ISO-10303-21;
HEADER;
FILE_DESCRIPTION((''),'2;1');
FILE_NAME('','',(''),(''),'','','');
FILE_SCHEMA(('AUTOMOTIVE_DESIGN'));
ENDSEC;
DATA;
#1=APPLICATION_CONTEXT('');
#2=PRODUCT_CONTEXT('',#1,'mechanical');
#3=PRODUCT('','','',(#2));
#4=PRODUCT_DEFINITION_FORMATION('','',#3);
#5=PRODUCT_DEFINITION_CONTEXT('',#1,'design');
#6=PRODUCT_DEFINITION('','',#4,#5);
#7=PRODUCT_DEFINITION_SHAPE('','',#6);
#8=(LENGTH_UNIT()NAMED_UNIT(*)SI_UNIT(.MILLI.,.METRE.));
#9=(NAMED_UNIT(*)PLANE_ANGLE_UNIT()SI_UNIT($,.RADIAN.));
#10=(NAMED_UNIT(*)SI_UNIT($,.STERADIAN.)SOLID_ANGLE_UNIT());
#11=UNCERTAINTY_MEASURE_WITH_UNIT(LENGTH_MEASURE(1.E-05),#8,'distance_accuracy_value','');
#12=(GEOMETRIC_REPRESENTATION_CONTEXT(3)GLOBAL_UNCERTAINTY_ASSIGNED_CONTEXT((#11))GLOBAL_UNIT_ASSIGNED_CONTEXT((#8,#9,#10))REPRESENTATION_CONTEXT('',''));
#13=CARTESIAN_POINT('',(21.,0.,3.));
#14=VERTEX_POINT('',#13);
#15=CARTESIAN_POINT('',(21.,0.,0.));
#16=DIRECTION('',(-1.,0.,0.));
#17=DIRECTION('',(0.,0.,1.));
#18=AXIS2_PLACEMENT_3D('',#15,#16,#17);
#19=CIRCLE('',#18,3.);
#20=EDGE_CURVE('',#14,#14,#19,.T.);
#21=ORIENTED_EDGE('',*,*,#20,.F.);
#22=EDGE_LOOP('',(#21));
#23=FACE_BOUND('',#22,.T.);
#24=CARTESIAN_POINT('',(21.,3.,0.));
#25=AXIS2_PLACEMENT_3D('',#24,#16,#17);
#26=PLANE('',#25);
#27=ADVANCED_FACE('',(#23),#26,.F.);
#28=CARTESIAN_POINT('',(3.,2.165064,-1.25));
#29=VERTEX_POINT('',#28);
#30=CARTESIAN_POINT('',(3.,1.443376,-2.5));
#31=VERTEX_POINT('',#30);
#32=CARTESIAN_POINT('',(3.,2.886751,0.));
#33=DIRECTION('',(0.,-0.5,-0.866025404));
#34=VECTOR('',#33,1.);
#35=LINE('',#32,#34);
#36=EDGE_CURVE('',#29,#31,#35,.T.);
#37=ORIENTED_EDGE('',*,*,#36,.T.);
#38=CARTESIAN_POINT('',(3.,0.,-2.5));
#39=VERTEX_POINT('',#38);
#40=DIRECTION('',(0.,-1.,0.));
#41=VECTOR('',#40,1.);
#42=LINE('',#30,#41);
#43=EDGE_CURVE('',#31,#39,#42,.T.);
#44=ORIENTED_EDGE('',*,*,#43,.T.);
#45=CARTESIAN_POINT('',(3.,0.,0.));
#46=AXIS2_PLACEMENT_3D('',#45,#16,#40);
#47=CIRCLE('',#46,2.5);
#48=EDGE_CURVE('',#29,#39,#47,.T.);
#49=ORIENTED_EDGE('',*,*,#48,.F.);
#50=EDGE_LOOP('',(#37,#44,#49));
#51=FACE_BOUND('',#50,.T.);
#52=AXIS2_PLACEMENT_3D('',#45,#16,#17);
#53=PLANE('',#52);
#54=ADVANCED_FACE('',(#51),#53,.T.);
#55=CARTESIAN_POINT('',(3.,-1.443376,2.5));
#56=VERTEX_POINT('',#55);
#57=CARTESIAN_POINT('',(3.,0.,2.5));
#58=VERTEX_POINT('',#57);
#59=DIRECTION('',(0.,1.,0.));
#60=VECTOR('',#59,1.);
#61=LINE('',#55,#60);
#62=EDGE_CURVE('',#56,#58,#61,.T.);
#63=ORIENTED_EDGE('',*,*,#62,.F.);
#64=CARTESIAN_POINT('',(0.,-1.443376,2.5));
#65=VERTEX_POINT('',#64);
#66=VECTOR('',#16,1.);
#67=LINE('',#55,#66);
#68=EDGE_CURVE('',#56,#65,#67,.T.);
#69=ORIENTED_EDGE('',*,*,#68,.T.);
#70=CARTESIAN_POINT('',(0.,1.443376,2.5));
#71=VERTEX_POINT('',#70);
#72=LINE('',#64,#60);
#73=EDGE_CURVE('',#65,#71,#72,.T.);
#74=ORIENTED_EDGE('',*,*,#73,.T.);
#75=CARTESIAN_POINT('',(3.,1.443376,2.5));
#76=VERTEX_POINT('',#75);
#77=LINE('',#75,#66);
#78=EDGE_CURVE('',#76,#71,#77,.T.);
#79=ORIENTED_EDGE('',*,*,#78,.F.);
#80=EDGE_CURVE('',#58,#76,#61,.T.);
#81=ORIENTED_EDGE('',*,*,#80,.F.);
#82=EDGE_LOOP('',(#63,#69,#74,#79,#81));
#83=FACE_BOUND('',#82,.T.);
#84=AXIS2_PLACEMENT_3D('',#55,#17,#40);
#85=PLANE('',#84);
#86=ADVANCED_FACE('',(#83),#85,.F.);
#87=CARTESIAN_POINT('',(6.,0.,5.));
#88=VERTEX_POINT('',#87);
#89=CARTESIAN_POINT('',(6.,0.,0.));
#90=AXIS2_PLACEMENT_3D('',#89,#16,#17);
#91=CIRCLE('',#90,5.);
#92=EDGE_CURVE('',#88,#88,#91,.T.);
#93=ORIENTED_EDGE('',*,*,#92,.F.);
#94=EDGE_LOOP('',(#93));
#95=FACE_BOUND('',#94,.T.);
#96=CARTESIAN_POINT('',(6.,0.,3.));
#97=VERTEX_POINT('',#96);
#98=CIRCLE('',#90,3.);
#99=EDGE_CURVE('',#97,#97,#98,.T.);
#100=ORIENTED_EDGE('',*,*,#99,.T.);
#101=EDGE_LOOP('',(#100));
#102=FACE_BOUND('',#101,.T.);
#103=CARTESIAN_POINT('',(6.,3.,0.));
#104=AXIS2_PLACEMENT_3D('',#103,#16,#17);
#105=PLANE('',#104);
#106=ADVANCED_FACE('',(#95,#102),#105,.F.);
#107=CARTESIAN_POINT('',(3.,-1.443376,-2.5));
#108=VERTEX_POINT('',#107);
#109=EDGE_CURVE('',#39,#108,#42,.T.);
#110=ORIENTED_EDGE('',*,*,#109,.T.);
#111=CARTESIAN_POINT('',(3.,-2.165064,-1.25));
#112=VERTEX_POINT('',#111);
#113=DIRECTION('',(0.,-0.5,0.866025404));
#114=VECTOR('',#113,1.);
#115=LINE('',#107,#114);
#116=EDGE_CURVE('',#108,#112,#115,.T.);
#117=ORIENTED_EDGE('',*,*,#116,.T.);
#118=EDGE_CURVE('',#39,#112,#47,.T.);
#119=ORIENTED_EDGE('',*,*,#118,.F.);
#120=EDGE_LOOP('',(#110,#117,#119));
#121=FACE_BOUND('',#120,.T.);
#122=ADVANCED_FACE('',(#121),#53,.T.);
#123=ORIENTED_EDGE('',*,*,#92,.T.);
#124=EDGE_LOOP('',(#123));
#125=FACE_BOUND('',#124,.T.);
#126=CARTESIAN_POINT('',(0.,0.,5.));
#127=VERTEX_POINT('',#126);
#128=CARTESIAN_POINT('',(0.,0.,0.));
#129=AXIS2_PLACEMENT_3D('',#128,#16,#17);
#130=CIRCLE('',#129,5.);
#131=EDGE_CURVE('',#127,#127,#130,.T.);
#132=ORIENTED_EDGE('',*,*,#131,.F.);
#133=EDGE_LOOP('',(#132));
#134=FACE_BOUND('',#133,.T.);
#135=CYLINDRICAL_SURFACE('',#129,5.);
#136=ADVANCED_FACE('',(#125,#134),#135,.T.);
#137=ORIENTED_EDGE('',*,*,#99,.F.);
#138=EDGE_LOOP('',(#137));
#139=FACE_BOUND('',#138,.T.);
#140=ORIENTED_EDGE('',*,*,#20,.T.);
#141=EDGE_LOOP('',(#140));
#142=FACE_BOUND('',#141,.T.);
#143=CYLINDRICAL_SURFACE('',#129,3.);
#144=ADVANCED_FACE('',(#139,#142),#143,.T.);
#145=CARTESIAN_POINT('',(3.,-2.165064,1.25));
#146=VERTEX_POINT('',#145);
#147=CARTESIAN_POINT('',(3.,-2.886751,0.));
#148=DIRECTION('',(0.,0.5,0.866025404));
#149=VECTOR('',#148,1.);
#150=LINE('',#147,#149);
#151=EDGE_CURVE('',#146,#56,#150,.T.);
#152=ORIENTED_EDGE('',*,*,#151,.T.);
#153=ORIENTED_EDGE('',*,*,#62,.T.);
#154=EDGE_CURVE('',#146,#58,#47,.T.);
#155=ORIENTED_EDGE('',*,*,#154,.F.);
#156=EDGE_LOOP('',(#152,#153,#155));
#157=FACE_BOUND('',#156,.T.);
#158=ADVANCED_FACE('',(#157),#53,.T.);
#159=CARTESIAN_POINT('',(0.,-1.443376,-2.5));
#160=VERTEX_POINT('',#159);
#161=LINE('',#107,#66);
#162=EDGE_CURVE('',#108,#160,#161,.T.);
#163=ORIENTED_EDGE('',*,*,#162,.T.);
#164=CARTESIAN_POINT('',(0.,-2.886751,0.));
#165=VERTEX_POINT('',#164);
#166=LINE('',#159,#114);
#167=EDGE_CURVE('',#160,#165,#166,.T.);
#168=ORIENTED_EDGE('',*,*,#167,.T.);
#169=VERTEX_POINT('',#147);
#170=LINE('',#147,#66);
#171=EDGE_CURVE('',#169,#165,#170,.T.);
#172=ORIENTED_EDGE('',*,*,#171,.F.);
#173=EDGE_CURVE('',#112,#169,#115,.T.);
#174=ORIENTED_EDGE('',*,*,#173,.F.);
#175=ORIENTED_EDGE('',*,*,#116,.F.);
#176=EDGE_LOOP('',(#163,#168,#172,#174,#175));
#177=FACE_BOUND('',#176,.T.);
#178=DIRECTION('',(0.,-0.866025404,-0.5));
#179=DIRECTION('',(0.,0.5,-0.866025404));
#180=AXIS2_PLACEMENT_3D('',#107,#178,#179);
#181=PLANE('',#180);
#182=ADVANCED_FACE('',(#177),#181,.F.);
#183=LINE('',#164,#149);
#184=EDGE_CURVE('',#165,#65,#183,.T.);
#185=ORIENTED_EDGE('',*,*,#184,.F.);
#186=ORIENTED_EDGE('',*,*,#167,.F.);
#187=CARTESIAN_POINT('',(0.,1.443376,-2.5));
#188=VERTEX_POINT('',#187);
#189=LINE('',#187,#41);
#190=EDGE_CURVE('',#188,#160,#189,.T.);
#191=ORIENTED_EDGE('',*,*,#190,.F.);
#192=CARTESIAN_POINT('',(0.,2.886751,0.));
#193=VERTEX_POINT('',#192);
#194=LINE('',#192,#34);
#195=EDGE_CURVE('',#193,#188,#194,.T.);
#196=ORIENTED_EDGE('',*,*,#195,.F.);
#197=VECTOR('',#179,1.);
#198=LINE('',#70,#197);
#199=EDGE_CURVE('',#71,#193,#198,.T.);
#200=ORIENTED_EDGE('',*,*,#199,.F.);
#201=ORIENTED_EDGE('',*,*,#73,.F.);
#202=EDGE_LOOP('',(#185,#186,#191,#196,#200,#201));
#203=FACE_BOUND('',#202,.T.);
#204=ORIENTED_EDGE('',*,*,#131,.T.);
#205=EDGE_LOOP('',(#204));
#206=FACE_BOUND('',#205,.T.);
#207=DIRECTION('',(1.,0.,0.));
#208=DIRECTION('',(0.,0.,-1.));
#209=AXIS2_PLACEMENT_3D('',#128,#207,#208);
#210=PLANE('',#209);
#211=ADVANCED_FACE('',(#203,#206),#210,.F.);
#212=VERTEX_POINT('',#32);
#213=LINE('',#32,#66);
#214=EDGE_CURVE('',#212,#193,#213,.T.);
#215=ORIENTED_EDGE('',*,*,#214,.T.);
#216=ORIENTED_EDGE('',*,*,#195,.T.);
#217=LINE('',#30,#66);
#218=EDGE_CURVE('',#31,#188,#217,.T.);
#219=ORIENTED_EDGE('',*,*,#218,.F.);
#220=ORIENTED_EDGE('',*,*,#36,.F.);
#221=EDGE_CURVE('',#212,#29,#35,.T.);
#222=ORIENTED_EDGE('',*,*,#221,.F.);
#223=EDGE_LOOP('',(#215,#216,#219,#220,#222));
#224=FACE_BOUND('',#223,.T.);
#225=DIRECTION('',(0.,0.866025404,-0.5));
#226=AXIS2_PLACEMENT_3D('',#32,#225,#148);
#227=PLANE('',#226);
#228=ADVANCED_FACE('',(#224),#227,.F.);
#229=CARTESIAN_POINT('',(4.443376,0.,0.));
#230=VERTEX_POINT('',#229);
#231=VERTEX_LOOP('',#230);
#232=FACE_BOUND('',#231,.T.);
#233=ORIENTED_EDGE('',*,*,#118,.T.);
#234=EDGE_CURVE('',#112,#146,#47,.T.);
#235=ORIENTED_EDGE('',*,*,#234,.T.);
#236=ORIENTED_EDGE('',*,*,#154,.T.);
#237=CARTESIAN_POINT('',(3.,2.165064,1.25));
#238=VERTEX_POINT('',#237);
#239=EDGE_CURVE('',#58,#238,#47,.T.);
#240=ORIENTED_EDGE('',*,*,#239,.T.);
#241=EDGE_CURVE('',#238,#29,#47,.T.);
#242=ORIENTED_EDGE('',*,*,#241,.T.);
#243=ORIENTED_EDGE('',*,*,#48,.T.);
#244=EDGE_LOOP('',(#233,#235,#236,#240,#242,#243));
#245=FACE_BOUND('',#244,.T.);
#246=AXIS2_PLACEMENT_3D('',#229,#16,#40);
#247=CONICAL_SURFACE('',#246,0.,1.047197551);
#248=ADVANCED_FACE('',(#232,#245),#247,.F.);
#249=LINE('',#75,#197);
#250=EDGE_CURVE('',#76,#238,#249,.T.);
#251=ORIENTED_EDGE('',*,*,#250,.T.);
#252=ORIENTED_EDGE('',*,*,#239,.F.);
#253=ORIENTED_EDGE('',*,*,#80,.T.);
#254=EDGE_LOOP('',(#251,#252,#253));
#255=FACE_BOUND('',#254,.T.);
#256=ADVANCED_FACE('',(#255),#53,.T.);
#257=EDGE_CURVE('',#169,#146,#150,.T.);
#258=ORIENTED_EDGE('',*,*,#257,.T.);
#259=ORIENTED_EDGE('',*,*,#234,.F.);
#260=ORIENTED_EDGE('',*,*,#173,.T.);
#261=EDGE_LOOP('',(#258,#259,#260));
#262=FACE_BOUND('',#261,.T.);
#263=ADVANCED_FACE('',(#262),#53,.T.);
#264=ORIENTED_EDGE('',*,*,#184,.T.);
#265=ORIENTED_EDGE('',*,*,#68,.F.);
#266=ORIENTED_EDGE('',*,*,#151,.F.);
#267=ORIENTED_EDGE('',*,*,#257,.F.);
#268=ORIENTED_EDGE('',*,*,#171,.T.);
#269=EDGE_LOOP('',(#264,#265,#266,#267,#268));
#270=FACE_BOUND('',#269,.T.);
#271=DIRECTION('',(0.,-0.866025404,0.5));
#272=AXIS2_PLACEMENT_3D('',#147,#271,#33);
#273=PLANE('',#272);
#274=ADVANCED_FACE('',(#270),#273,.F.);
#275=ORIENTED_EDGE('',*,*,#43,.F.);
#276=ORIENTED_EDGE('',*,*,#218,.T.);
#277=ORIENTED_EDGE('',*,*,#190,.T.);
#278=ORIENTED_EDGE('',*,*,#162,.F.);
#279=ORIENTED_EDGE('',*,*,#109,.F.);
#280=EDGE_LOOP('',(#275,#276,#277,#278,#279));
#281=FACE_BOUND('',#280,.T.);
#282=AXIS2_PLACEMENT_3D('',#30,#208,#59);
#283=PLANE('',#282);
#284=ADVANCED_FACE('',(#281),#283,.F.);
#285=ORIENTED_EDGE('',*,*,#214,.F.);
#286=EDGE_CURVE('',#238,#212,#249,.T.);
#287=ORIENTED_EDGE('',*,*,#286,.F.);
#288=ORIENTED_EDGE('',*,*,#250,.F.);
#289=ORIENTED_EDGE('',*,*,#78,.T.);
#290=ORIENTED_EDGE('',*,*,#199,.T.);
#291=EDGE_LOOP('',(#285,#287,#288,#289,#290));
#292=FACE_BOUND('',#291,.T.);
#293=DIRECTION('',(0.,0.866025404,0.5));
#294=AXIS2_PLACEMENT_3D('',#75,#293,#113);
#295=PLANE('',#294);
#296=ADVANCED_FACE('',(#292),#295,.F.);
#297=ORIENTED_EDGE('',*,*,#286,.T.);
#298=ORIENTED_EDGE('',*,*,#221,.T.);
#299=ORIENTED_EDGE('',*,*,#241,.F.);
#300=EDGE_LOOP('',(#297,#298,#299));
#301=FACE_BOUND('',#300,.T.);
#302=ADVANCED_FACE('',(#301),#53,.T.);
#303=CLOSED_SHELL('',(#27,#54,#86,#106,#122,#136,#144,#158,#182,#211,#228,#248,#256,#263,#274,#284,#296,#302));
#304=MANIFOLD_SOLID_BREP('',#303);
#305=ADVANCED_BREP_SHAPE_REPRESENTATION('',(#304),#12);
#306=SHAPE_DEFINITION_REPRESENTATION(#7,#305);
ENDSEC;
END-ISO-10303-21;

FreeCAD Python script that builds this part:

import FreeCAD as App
import Part
import Sketcher
from FreeCAD import Vector
Q = App.Units.Quantity


def add_polygon(sketch, points):
    """Adds a closed chain of lines whose ends are joined by coincident constraints."""
    first, n = sketch.GeometryCount, len(points)
    for a, b in zip(points, points[1:] + points[:1]):
        sketch.addGeometry(Part.LineSegment(App.Vector(*a, 0), App.Vector(*b, 0)), False)
    for i in range(n):
        sketch.addConstraint(Sketcher.Constraint("Coincident", first + i, 2, first + (i + 1) % n, 1))

doc = App.newDocument("Part")
body = doc.addObject("PartDesign::Body", "Body")

# Sketch on XY plane
sketch1 = body.newObject("Sketcher::SketchObject", "Sketch")
sketch1.AttachmentSupport = (doc.getObject("XY_Plane"), [""])
sketch1.MapMode = "FlatFace"
add_polygon(sketch1, [(0, 5), (0, 0), (21, 0), (21, 3), (6, 3), (6, 5)])  # lines 0-5
sketch1.addConstraint([
    Sketcher.Constraint("Vertical", 0),
    Sketcher.Constraint("Horizontal", 1),
    Sketcher.Constraint("Vertical", 2),
    Sketcher.Constraint("Horizontal", 3),
    Sketcher.Constraint("Vertical", 4),
    Sketcher.Constraint("Horizontal", 5),
    Sketcher.Constraint("Coincident", 0, 2, -1, 1),
    Sketcher.Constraint("DistanceX", 1, 1, 1, 2, Q("21 mm")),
    Sketcher.Constraint("DistanceX", 3, 2, 3, 1, Q("15 mm")),
    Sketcher.Constraint("DistanceY", 0, 2, 0, 1, Q("5 mm")),
    Sketcher.Constraint("DistanceY", 2, 1, 2, 2, Q("3 mm")),
])
revolution = body.newObject("PartDesign::Revolution", "Revolution")
revolution.Profile = sketch1
revolution.ReferenceAxis = (sketch1, ["H_Axis"])
revolution.Angle = 360

# Sketch on XY plane
sketch2 = body.newObject("Sketcher::SketchObject", "Sketch001")
sketch2.AttachmentSupport = (doc.getObject("XY_Plane"), [""])
sketch2.MapMode = "FlatFace"
add_polygon(sketch2, [(3, 2.5), (0, 2.5), (0, 0), (4.4, 0)])  # lines 0-3
sketch2.addConstraint([
    Sketcher.Constraint("Horizontal", 0),
    Sketcher.Constraint("Vertical", 1),
    Sketcher.Constraint("Horizontal", 2),
    Sketcher.Constraint("Coincident", 1, 2, -1, 1),
    Sketcher.Constraint("DistanceX", 0, 2, 0, 1, Q("3 mm")),
    Sketcher.Constraint("Angle", 3, Q("120 deg")),
    Sketcher.Constraint("DistanceY", 1, 2, 1, 1, Q("2.5 mm")),
])
groove = body.newObject("PartDesign::Groove", "Groove")
groove.Profile = sketch2
groove.ReferenceAxis = (sketch2, ["H_Axis"])
groove.Angle = 360

# Sketch on YZ plane
sketch3 = body.newObject("Sketcher::SketchObject", "Sketch002")
sketch3.AttachmentSupport = (doc.getObject("YZ_Plane"), [""])
sketch3.MapMode = "FlatFace"
add_polygon(sketch3, [(-2.9, 0), (-1.4, 2.5), (1.4, 2.5), (2.9, 0), (1.4, -2.5), (-1.4, -2.5)])  # lines 0-5
sketch3.addConstraint([
    Sketcher.Constraint("Horizontal", 1),
    Sketcher.Constraint("Horizontal", 4),
    Sketcher.Constraint("Symmetric", 0, 2, 3, 2, -1, 1),
    Sketcher.Constraint("Symmetric", 2, 2, 5, 2, -1, 1),
    Sketcher.Constraint("PointOnObject", 2, 2, -1),
    Sketcher.Constraint("Parallel", 2, 5),
    Sketcher.Constraint("Vertical", 1, 2, 3, 2),
    Sketcher.Constraint("Angle", 0, Q("60 deg")),
    Sketcher.Constraint("DistanceY", 3, 2, 1, 2, Q("5 mm")),
    Sketcher.Constraint("DistanceX", 1, 1, 1, 2, Q("2.886751 mm")),
])
pocket1 = body.newObject("PartDesign::Pocket", "Pocket")
pocket1.Profile = sketch3
pocket1.Length = 3
pocket1.Reversed = True

doc.recompute()
